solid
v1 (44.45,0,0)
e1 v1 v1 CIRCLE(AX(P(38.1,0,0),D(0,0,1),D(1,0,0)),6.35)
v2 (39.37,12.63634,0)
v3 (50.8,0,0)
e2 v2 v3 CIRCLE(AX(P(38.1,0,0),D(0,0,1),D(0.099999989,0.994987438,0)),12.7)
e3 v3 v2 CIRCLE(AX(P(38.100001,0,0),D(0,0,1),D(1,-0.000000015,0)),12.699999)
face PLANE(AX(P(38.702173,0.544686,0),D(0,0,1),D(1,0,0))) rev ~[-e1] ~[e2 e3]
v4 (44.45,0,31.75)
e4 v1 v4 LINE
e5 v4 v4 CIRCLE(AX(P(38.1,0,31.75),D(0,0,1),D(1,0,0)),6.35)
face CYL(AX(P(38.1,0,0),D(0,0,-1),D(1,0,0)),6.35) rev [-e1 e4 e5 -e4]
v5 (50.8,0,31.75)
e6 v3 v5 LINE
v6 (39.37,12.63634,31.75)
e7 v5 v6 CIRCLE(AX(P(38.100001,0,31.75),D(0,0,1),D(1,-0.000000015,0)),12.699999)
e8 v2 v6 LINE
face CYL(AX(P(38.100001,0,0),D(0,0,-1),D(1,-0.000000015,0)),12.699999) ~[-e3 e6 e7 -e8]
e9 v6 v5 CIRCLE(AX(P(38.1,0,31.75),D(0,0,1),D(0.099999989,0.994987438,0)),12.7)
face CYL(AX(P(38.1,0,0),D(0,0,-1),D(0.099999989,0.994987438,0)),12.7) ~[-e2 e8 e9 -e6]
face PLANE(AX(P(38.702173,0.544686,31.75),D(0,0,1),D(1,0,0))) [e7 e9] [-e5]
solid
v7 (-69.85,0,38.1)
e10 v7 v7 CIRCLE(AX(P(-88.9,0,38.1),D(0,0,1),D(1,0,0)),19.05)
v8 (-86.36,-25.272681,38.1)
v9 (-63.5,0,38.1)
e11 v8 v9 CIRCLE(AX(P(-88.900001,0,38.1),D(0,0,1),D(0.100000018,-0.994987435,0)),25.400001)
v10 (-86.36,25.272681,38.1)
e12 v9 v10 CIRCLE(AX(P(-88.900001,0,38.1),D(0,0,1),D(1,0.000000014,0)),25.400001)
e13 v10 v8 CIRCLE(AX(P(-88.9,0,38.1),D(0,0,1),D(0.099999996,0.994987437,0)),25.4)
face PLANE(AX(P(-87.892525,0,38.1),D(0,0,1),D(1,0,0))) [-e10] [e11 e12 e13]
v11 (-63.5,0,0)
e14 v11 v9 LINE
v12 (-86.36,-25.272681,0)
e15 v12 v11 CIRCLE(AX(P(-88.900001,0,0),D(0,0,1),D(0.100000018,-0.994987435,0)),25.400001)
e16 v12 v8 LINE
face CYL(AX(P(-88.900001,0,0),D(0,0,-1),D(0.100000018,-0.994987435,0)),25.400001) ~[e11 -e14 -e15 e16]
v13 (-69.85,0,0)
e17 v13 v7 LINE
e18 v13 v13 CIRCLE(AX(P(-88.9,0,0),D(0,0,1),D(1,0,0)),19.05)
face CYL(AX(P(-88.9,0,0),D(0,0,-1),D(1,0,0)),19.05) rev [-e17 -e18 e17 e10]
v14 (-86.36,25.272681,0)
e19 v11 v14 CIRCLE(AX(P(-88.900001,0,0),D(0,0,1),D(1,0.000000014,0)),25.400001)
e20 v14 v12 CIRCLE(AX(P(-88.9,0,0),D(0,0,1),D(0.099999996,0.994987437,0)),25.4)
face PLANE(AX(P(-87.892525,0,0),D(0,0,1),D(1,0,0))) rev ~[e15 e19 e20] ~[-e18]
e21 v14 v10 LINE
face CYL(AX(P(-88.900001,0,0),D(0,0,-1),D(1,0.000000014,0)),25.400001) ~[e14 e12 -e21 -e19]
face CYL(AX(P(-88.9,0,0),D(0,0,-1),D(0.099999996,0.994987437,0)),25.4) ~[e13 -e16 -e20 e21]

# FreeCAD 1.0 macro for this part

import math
import FreeCAD as App
import Part
import Sketcher
from FreeCAD import Vector
Q = App.Units.Quantity

doc = App.newDocument("Part")
body = doc.addObject("PartDesign::Body", "Body")

sketch1 = doc.addObject("Sketcher::SketchObject", "Sketch")
body.addObject(sketch1)
sketch1.AttachmentSupport = (doc.XY_Plane, [""])
sketch1.MapMode = "FlatFace"
sketch1.addGeometry(Part.ArcOfCircle(Part.Circle(Vector(-89, 0, 0), Vector(0, 0, 1), 25), math.radians(-84), math.radians(0)), False)
sketch1.addGeometry(Part.ArcOfCircle(Part.Circle(Vector(-89, 0, 0), Vector(0, 0, 1), 25), math.radians(0), math.radians(84)), False)
sketch1.addGeometry(Part.ArcOfCircle(Part.Circle(Vector(-89, 0, 0), Vector(0, 0, 1), 25), math.radians(84), math.radians(276)), False)
sketch1.addGeometry(Part.Circle(Vector(-89, 0, 0), Vector(0, 0, 1), 19), False)
sketch1.addConstraint(Sketcher.Constraint("Tangent", 0, 2, 1, 1))
sketch1.addConstraint(Sketcher.Constraint("Tangent", 1, 2, 2, 1))
sketch1.addConstraint(Sketcher.Constraint("Tangent", 2, 2, 0, 1))
sketch1.addConstraint(Sketcher.Constraint("Coincident", 3, 3, 0, 3))
sketch1.addConstraint(Sketcher.Constraint("Symmetric", 1, 2, 2, 2, -1))
sketch1.addConstraint(Sketcher.Constraint("PointOnObject", 0, 2, -1))
sketch1.addConstraint(Sketcher.Constraint("Radius", 0, Q("1 in")))
sketch1.addConstraint(Sketcher.Constraint("Diameter", 3, Q("1.5 in")))
sketch1.addConstraint(Sketcher.Constraint("DistanceX", 0, 3, -1, 1, Q("3.5 in")))
sketch1.addConstraint(Sketcher.Constraint("DistanceX", 1, 2, -1, 1, Q("3.4 in")))
pad1 = doc.addObject("PartDesign::Pad", "Pad")
body.addObject(pad1)
pad1.Profile = sketch1
pad1.Length = Q("1.5 in")
body2 = doc.addObject("PartDesign::Body", "Body001")

sketch2 = doc.addObject("Sketcher::SketchObject", "Sketch001")
body2.addObject(sketch2)
sketch2.AttachmentSupport = (doc.getObject("XY_Plane001"), [""])
sketch2.MapMode = "FlatFace"
sketch2.addGeometry(Part.ArcOfCircle(Part.Circle(Vector(38, 0, 0), Vector(0, 0, 1), 13), math.radians(0), math.radians(84)), False)
sketch2.addGeometry(Part.ArcOfCircle(Part.Circle(Vector(38, 0, 0), Vector(0, 0, 1), 13), math.radians(84), math.radians(360)), False)
sketch2.addGeometry(Part.Circle(Vector(38, 0, 0), Vector(0, 0, 1), 6), False)
sketch2.addConstraint(Sketcher.Constraint("Tangent", 0, 1, 1, 2))
sketch2.addConstraint(Sketcher.Constraint("Coincident", 1, 1, 0, 2))
sketch2.addConstraint(Sketcher.Constraint("Coincident", 2, 3, 0, 3))
sketch2.addConstraint(Sketcher.Constraint("PointOnObject", 0, 3, -1))
sketch2.addConstraint(Sketcher.Constraint("PointOnObject", 0, 1, -1))
sketch2.addConstraint(Sketcher.Constraint("Diameter", 2, Q("0.5 in")))
sketch2.addConstraint(Sketcher.Constraint("Radius", 0, Q("0.5 in")))
sketch2.addConstraint(Sketcher.Constraint("DistanceX", -1, 1, 0, 1, Q("2 in")))
sketch2.addConstraint(Sketcher.Constraint("DistanceX", -1, 1, 1, 1, Q("1.55 in")))
pad2 = doc.addObject("PartDesign::Pad", "Pad001")
body2.addObject(pad2)
pad2.Profile = sketch2
pad2.Length = Q("1.25 in")

doc.recompute()
